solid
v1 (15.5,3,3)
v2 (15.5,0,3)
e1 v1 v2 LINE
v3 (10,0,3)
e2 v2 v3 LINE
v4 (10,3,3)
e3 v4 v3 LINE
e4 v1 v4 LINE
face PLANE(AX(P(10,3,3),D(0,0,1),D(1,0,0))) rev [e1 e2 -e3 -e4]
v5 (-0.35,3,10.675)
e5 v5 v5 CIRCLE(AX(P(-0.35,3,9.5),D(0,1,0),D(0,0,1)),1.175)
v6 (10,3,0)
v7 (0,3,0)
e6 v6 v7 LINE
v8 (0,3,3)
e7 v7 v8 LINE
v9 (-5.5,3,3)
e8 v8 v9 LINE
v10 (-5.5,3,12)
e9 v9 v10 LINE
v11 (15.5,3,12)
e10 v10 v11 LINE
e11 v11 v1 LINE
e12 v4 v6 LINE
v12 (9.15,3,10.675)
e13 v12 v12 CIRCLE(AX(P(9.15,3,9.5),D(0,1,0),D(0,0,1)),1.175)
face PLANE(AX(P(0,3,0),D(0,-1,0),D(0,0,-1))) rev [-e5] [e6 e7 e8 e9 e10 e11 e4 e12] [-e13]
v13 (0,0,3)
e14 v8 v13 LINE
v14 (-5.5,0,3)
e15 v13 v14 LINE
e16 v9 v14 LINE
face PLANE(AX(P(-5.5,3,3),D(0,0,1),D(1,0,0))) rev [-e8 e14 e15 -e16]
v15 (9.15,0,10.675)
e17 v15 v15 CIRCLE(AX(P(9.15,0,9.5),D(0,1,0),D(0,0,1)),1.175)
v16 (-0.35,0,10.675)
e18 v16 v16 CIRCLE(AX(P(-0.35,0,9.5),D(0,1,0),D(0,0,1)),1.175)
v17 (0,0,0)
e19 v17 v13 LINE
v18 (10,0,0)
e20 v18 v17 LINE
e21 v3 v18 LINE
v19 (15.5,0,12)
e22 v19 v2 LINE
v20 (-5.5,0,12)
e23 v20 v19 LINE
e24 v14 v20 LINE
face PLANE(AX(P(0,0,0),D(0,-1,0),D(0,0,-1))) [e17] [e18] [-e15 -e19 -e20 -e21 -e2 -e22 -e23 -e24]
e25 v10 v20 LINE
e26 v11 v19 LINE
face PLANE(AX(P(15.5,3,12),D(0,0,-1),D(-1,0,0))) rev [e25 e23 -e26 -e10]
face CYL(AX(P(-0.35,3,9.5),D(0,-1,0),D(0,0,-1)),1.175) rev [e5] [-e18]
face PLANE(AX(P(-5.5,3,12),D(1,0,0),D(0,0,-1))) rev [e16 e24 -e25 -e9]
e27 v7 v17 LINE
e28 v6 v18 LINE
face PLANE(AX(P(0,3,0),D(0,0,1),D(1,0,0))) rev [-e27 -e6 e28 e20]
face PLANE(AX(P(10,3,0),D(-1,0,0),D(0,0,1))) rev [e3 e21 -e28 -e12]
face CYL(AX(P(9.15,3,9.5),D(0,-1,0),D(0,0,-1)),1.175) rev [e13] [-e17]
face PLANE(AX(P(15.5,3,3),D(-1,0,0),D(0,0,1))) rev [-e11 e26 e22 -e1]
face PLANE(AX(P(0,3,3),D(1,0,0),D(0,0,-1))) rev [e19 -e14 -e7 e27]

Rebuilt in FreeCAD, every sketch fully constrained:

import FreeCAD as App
import Part
import Sketcher
from FreeCAD import Vector

doc = App.newDocument("Part")
body = doc.addObject("PartDesign::Body", "Body")

sketch1 = doc.addObject("Sketcher::SketchObject", "Sketch")
body.addObject(sketch1)
sketch1.AttachmentSupport = (doc.XZ_Plane, [""])
sketch1.MapMode = "FlatFace"
sketch1.addGeometry(Part.LineSegment(Vector(10, 0, 0), Vector(0, 0, 0)), False)
sketch1.addGeometry(Part.LineSegment(Vector(0, 0, 0), Vector(0, 3, 0)), False)
sketch1.addGeometry(Part.LineSegment(Vector(0, 3, 0), Vector(-5.5, 3, 0)), False)
sketch1.addGeometry(Part.LineSegment(Vector(-5.5, 3, 0), Vector(-5.5, 12, 0)), False)
sketch1.addGeometry(Part.LineSegment(Vector(-5.5, 12, 0), Vector(15.5, 12, 0)), False)
sketch1.addGeometry(Part.LineSegment(Vector(15.5, 12, 0), Vector(15.5, 3, 0)), False)
sketch1.addGeometry(Part.LineSegment(Vector(15.5, 3, 0), Vector(10, 3, 0)), False)
sketch1.addGeometry(Part.LineSegment(Vector(10, 3, 0), Vector(10, 0, 0)), False)
sketch1.addGeometry(Part.Circle(Vector(9.15, 9.5, 0), Vector(0, 0, 1), 1.175), False)
sketch1.addGeometry(Part.Circle(Vector(-0.35, 9.5, 0), Vector(0, 0, 1), 1.175), False)
sketch1.addConstraint(Sketcher.Constraint("Coincident", 0, 2, 1, 1))
sketch1.addConstraint(Sketcher.Constraint("Coincident", 1, 2, 2, 1))
sketch1.addConstraint(Sketcher.Constraint("Coincident", 2, 2, 3, 1))
sketch1.addConstraint(Sketcher.Constraint("Coincident", 3, 2, 4, 1))
sketch1.addConstraint(Sketcher.Constraint("Coincident", 4, 2, 5, 1))
sketch1.addConstraint(Sketcher.Constraint("Coincident", 5, 2, 6, 1))
sketch1.addConstraint(Sketcher.Constraint("Coincident", 6, 2, 7, 1))
sketch1.addConstraint(Sketcher.Constraint("Coincident", 7, 2, 0, 1))
sketch1.addConstraint(Sketcher.Constraint("Horizontal", 0))
sketch1.addConstraint(Sketcher.Constraint("Vertical", 1))
sketch1.addConstraint(Sketcher.Constraint("Horizontal", 2))
sketch1.addConstraint(Sketcher.Constraint("Vertical", 3))
sketch1.addConstraint(Sketcher.Constraint("Horizontal", 4))
sketch1.addConstraint(Sketcher.Constraint("Vertical", 5))
sketch1.addConstraint(Sketcher.Constraint("Horizontal", 6))
sketch1.addConstraint(Sketcher.Constraint("Vertical", 7))
sketch1.addConstraint(Sketcher.Constraint("Coincident", 0, 2, -1, 1))
sketch1.addConstraint(Sketcher.Constraint("Equal", 8, 9))
sketch1.addConstraint(Sketcher.Constraint("Horizontal", 8, 3, 9, 3))
sketch1.addConstraint(Sketcher.Constraint("Horizontal", 2, 2, 5, 2))
sketch1.addConstraint(Sketcher.Constraint("Equal", 2, 6))
sketch1.addConstraint(Sketcher.Constraint("Diameter", 8, 2.35))
sketch1.addConstraint(Sketcher.Constraint("DistanceX", 0, 2, 0, 1, 10.0))
sketch1.addConstraint(Sketcher.Constraint("DistanceX", 4, 1, 4, 2, 21.0))
sketch1.addConstraint(Sketcher.Constraint("DistanceY", 1, 1, 1, 2, 3.0))
sketch1.addConstraint(Sketcher.Constraint("DistanceY", 3, 1, 3, 2, 9.0))
sketch1.addConstraint(Sketcher.Constraint("DistanceY", -1, 1, 8, 3, 9.5))
sketch1.addConstraint(Sketcher.Constraint("DistanceX", 9, 3, 8, 3, 9.5))
sketch1.addConstraint(Sketcher.Constraint("DistanceX", -1, 1, 8, 3, 9.15))
pad1 = doc.addObject("PartDesign::Pad", "Pad")
body.addObject(pad1)
pad1.Profile = sketch1
pad1.Length = 3
pad1.Reversed = True

doc.recompute()
